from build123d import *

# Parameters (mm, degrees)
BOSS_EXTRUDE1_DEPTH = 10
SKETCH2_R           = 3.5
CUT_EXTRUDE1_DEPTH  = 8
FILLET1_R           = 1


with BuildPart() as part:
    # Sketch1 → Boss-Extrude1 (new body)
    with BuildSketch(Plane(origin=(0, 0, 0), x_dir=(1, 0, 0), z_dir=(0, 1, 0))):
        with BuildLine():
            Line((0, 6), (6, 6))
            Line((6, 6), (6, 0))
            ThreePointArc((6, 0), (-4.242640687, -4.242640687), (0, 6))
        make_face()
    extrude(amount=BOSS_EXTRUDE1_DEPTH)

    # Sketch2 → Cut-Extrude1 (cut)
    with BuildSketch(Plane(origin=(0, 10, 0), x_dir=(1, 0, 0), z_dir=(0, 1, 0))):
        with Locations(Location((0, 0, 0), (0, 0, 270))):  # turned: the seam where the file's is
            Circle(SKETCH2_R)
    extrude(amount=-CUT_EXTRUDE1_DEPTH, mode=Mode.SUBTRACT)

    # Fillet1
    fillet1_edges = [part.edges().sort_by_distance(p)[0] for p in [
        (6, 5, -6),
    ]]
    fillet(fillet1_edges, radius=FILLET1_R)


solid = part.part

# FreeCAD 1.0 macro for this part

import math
import FreeCAD as App
import Part
import Sketcher

V = App.Vector


def edges_at(feature, points):
    """Names of the edges that pass closest to the given points."""
    edges = feature.Shape.Edges
    near = lambda p: min(range(len(edges)), key=lambda i: edges[i].distToShape(Part.Vertex(*p))[0])
    return sorted({f"Edge{near(p) + 1}" for p in points})

doc = App.newDocument("Part")
params = doc.addObject("Spreadsheet::Sheet", "Params")
for row, (alias, value) in enumerate([
    ("sketch1_radius", "6 mm"),
    ("pad1_length", "10 mm"),
    ("sketch2_diameter", "7 mm"),
    ("pocket1_length", "8 mm"),
    ("fillet_radius", "1 mm"),
], start=1):
    params.set(f"A{row}", alias)
    params.set(f"B{row}", "=" + value)
    params.setAlias(f"B{row}", alias)

body = doc.addObject("PartDesign::Body", "Body")

sketch1 = body.newObject("Sketcher::SketchObject", "Sketch")
sketch1.AttachmentSupport = (doc.getObject("XZ_Plane"), [""])
sketch1.MapMode = "FlatFace"
sketch1.addGeometry([
    Part.LineSegment(V(6, -6, 0), V(0, -6, 0)),
    Part.ArcOfCircle(Part.Circle(V(0, 0, 0), V(0, 0, 1), 6), math.radians(0), math.radians(270)),
    Part.LineSegment(V(6, 0, 0), V(6, -6, 0)),
], False)
sketch1.addConstraint([
    Sketcher.Constraint("Tangent", 0, 2, 1, 2),
    Sketcher.Constraint("Tangent", 1, 1, 2, 1),
    Sketcher.Constraint("Coincident", 2, 2, 0, 1),
    Sketcher.Constraint("Horizontal", 0),
    Sketcher.Constraint("Vertical", 2),
    Sketcher.Constraint("Coincident", 1, 3, -1, 1),
    Sketcher.Constraint("Radius", 1, 6.0),
])
sketch1.setExpression("Constraints[6]", "Params.sketch1_radius")
pad1 = body.newObject("PartDesign::Pad", "Pad")
pad1.Profile = sketch1
pad1.setExpression("Length", "Params.pad1_length")
pad1.Reversed = True

sketch2 = body.newObject("Sketcher::SketchObject", "Sketch001")
sketch2.AttachmentSupport = (doc.getObject("XZ_Plane"), [""])
sketch2.MapMode = "FlatFace"
sketch2.AttachmentOffset = App.Placement(V(0, 0, -10), App.Rotation())
sketch2.addGeometry(Part.Circle(V(0, 0, 0), V(0, 0, 1), 3.5), False)
sketch2.addConstraint([
    Sketcher.Constraint("Coincident", 0, 3, -1, 1),
    Sketcher.Constraint("Diameter", 0, 7.0),
])
sketch2.setExpression("Constraints[1]", "Params.sketch2_diameter")
pocket1 = body.newObject("PartDesign::Pocket", "Pocket")
pocket1.Profile = sketch2
pocket1.setExpression("Length", "Params.pocket1_length")
pocket1.Reversed = True
doc.recompute()

fillet = body.newObject("PartDesign::Fillet", "Fillet")
fillet.Base = (pocket1, edges_at(pocket1, [(6, 5, -6)]))
fillet.setExpression("Radius", "Params.fillet_radius")

doc.recompute()
